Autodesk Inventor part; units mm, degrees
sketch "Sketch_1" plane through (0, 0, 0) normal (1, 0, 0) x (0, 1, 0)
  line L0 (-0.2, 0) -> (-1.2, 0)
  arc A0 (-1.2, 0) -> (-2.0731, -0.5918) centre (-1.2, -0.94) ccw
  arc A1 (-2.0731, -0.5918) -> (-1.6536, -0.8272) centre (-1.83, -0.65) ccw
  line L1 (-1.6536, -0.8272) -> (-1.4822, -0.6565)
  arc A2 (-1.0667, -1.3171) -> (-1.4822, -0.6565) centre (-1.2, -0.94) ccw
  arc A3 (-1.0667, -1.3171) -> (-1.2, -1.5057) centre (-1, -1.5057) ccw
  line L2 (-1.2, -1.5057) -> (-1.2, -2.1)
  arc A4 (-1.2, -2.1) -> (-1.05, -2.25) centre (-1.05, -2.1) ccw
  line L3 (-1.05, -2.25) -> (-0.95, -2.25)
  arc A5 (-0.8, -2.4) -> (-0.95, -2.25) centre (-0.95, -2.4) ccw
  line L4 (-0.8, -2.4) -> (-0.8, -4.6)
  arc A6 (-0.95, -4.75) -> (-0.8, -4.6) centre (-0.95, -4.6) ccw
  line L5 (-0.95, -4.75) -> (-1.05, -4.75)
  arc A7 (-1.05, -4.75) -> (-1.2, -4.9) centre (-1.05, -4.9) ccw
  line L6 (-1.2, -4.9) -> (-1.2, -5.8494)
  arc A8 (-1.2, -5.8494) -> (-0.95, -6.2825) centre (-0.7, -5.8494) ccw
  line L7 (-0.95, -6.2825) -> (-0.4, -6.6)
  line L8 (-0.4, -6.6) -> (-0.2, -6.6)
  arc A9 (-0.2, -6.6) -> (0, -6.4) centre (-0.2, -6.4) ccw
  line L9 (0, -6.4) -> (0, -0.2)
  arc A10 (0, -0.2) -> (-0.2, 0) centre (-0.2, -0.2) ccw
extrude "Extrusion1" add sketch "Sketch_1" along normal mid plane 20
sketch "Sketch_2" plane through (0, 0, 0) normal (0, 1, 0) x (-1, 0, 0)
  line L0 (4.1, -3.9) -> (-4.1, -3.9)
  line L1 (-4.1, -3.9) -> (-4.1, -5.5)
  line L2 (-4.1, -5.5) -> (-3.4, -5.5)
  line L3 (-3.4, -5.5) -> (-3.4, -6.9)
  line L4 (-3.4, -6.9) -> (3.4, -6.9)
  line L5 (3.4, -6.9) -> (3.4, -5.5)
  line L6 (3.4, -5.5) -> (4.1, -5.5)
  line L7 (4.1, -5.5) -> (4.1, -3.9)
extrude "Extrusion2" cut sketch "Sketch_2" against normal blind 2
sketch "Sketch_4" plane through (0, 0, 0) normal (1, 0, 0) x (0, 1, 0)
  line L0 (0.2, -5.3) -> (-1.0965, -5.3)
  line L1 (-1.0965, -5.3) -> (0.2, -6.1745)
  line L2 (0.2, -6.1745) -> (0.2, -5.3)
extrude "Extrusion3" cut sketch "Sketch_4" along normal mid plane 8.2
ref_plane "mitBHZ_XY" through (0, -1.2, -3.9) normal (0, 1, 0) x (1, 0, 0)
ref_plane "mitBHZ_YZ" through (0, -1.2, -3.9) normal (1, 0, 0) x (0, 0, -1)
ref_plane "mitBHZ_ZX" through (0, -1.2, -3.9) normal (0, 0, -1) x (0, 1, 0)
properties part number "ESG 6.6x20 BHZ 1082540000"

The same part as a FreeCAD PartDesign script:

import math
import FreeCAD as App
import Part
import Sketcher

V = App.Vector
Q = App.Units.Quantity


def add_polygon(sketch, points):
    """Adds a closed chain of lines whose ends are joined by coincident constraints."""
    first, n = sketch.GeometryCount, len(points)
    for a, b in zip(points, points[1:] + points[:1]):
        sketch.addGeometry(Part.LineSegment(App.Vector(*a, 0), App.Vector(*b, 0)), False)
    for i in range(n):
        sketch.addConstraint(Sketcher.Constraint("Coincident", first + i, 2, first + (i + 1) % n, 1))

doc = App.newDocument("Part")
body = doc.addObject("PartDesign::Body", "Body")

# Sketch on YZ plane
sketch1 = body.newObject("Sketcher::SketchObject", "Sketch")
sketch1.AttachmentSupport = (doc.getObject("YZ_Plane"), [""])
sketch1.MapMode = "FlatFace"
sketch1.addGeometry(Part.ArcOfCircle(Part.Circle(V(-0.2, -0.2, 0), V(0, 0, 1), 0.2), math.radians(0), math.radians(90)), False)
sketch1.addGeometry(Part.LineSegment(V(-0.2, 0, 0), V(-1.2, 0, 0)), False)
sketch1.addGeometry(Part.ArcOfCircle(Part.Circle(V(-1.2, -0.94, 0), V(0, 0, 1), 0.94), math.radians(90), math.radians(158)), False)
sketch1.addGeometry(Part.ArcOfCircle(Part.Circle(V(-1.83, -0.65, 0), V(0, 0, 1), 0.25), math.radians(167), math.radians(315)), False)
sketch1.addGeometry(Part.LineSegment(V(-1.65, -0.83, 0), V(-1.48, -0.66, 0)), False)
sketch1.addGeometry(Part.ArcOfCircle(Part.Circle(V(-1.2, -0.94, 0), V(0, 0, 1), 0.4), math.radians(-71), math.radians(135)), False)
sketch1.addGeometry(Part.ArcOfCircle(Part.Circle(V(-1, -1.51, 0), V(0, 0, 1), 0.2), math.radians(109), math.radians(180)), False)
sketch1.addGeometry(Part.LineSegment(V(-1.2, -1.51, 0), V(-1.2, -2.1, 0)), False)
sketch1.addGeometry(Part.ArcOfCircle(Part.Circle(V(-1.05, -2.1, 0), V(0, 0, 1), 0.15), math.radians(180), math.radians(270)), False)
sketch1.addGeometry(Part.LineSegment(V(-1.05, -2.25, 0), V(-0.95, -2.25, 0)), False)
sketch1.addGeometry(Part.ArcOfCircle(Part.Circle(V(-0.95, -2.4, 0), V(0, 0, 1), 0.15), math.radians(0), math.radians(90)), False)
sketch1.addGeometry(Part.LineSegment(V(-0.8, -2.4, 0), V(-0.8, -4.6, 0)), False)
sketch1.addGeometry(Part.ArcOfCircle(Part.Circle(V(-0.95, -4.6, 0), V(0, 0, 1), 0.15), math.radians(-90), math.radians(0)), False)
sketch1.addGeometry(Part.LineSegment(V(-0.95, -4.75, 0), V(-1.05, -4.75, 0)), False)
sketch1.addGeometry(Part.ArcOfCircle(Part.Circle(V(-1.05, -4.9, 0), V(0, 0, 1), 0.15), math.radians(90), math.radians(180)), False)
sketch1.addGeometry(Part.LineSegment(V(-1.2, -4.9, 0), V(-1.2, -5.85, 0)), False)
sketch1.addGeometry(Part.ArcOfCircle(Part.Circle(V(-0.7, -5.85, 0), V(0, 0, 1), 0.5), math.radians(180), math.radians(240)), False)
sketch1.addGeometry(Part.LineSegment(V(-0.95, -6.28, 0), V(-0.4, -6.6, 0)), False)
sketch1.addGeometry(Part.LineSegment(V(-0.4, -6.6, 0), V(-0.2, -6.6, 0)), False)
sketch1.addGeometry(Part.ArcOfCircle(Part.Circle(V(-0.2, -6.4, 0), V(0, 0, 1), 0.2), math.radians(-90), math.radians(0)), False)
sketch1.addGeometry(Part.LineSegment(V(0, -6.4, 0), V(0, -0.2, 0)), False)
sketch1.addConstraint(Sketcher.Constraint("Tangent", 0, 2, 1, 1))
sketch1.addConstraint(Sketcher.Constraint("Tangent", 1, 2, 2, 1))
sketch1.addConstraint(Sketcher.Constraint("Coincident", 2, 2, 3, 1))
sketch1.addConstraint(Sketcher.Constraint("Tangent", 3, 2, 4, 1))
sketch1.addConstraint(Sketcher.Constraint("Tangent", 4, 2, 5, 2))
sketch1.addConstraint(Sketcher.Constraint("Tangent", 5, 1, 6, 1))
sketch1.addConstraint(Sketcher.Constraint("Tangent", 6, 2, 7, 1))
sketch1.addConstraint(Sketcher.Constraint("Tangent", 7, 2, 8, 1))
sketch1.addConstraint(Sketcher.Constraint("Tangent", 8, 2, 9, 1))
sketch1.addConstraint(Sketcher.Constraint("Tangent", 9, 2, 10, 2))
sketch1.addConstraint(Sketcher.Constraint("Tangent", 10, 1, 11, 1))
sketch1.addConstraint(Sketcher.Constraint("Tangent", 11, 2, 12, 2))
sketch1.addConstraint(Sketcher.Constraint("Tangent", 12, 1, 13, 1))
sketch1.addConstraint(Sketcher.Constraint("Tangent", 13, 2, 14, 1))
sketch1.addConstraint(Sketcher.Constraint("Tangent", 14, 2, 15, 1))
sketch1.addConstraint(Sketcher.Constraint("Tangent", 15, 2, 16, 1))
sketch1.addConstraint(Sketcher.Constraint("Tangent", 16, 2, 17, 1))
sketch1.addConstraint(Sketcher.Constraint("Coincident", 17, 2, 18, 1))
sketch1.addConstraint(Sketcher.Constraint("Tangent", 18, 2, 19, 1))
sketch1.addConstraint(Sketcher.Constraint("Tangent", 19, 2, 20, 1))
sketch1.addConstraint(Sketcher.Constraint("Tangent", 20, 2, 0, 1))
sketch1.addConstraint(Sketcher.Constraint("Horizontal", 1))
sketch1.addConstraint(Sketcher.Constraint("Vertical", 7))
sketch1.addConstraint(Sketcher.Constraint("Horizontal", 9))
sketch1.addConstraint(Sketcher.Constraint("Vertical", 11))
sketch1.addConstraint(Sketcher.Constraint("Horizontal", 13))
sketch1.addConstraint(Sketcher.Constraint("Vertical", 15))
sketch1.addConstraint(Sketcher.Constraint("Horizontal", 18))
sketch1.addConstraint(Sketcher.Constraint("Vertical", 20))
sketch1.addConstraint(Sketcher.Constraint("Coincident", 5, 3, 2, 3))
sketch1.addConstraint(Sketcher.Constraint("Equal", 0, 6))
sketch1.addConstraint(Sketcher.Constraint("Equal", 8, 10))
sketch1.addConstraint(Sketcher.Constraint("Equal", 10, 12))
sketch1.addConstraint(Sketcher.Constraint("Equal", 12, 14))
sketch1.addConstraint(Sketcher.Constraint("Equal", 6, 19))
sketch1.addConstraint(Sketcher.Constraint("PointOnObject", 0, 2, -1))
sketch1.addConstraint(Sketcher.Constraint("PointOnObject", 19, 2, -2))
sketch1.addConstraint(Sketcher.Constraint("Vertical", 8, 3, 14, 3))
sketch1.addConstraint(Sketcher.Constraint("Vertical", 1, 2, 6, 2))
sketch1.addConstraint(Sketcher.Constraint("Vertical", 12, 1, 16, 2))
sketch1.addConstraint(Sketcher.Constraint("Radius", 0, Q("0.2 mm")))
sketch1.addConstraint(Sketcher.Constraint("Radius", 5, Q("0.4 mm")))
sketch1.addConstraint(Sketcher.Constraint("Radius", 16, Q("0.5 mm")))
sketch1.addConstraint(Sketcher.Constraint("DistanceX", 1, 2, 1, 1, Q("1 mm")))
sketch1.addConstraint(Sketcher.Constraint("Radius", 2, Q("0.94 mm")))
sketch1.addConstraint(Sketcher.Constraint("Radius", 3, Q("0.25 mm")))
sketch1.addConstraint(Sketcher.Constraint("Radius", 8, Q("0.15 mm")))
sketch1.addConstraint(Sketcher.Constraint("DistanceX", 9, 1, 9, 2, Q("0.1 mm")))
sketch1.addConstraint(Sketcher.Constraint("DistanceX", 18, 1, 18, 2, Q("0.2 mm")))
sketch1.addConstraint(Sketcher.Constraint("DistanceY", 11, 2, 11, 1, Q("2.2 mm")))
sketch1.addConstraint(Sketcher.Constraint("DistanceY", 20, 1, 20, 2, Q("6.2 mm")))
sketch1.addConstraint(Sketcher.Constraint("DistanceY", 19, 3, 10, 3, Q("4 mm")))
sketch1.addConstraint(Sketcher.Constraint("DistanceX", 3, 3, -1, 1, Q("1.83 mm")))
sketch1.addConstraint(Sketcher.Constraint("DistanceY", 3, 3, -1, 1, Q("0.65 mm")))
pad1 = body.newObject("PartDesign::Pad", "Pad")
pad1.Profile = sketch1
pad1.Length = 20
pad1.Midplane = True

# Sketch on XZ plane
sketch2 = body.newObject("Sketcher::SketchObject", "Sketch001")
sketch2.AttachmentSupport = (doc.getObject("XZ_Plane"), [""])
sketch2.MapMode = "FlatFace"
add_polygon(sketch2, [(-4.1, -5.5), (-4.1, -3.9), (4.1, -3.9), (4.1, -5.5), (3.4, -5.5), (3.4, -6.9), (-3.4, -6.9), (-3.4, -5.5)])  # lines 0-7
sketch2.addConstraint(Sketcher.Constraint("Vertical", 0))
sketch2.addConstraint(Sketcher.Constraint("Horizontal", 1))
sketch2.addConstraint(Sketcher.Constraint("Vertical", 2))
sketch2.addConstraint(Sketcher.Constraint("Horizontal", 3))
sketch2.addConstraint(Sketcher.Constraint("Vertical", 4))
sketch2.addConstraint(Sketcher.Constraint("Horizontal", 5))
sketch2.addConstraint(Sketcher.Constraint("Vertical", 6))
sketch2.addConstraint(Sketcher.Constraint("Horizontal", 7))
sketch2.addConstraint(Sketcher.Constraint("Symmetric", 3, 2, 6, 2, -2))
sketch2.addConstraint(Sketcher.Constraint("Equal", 3, 7))
sketch2.addConstraint(Sketcher.Constraint("DistanceX", 1, 1, 1, 2, Q("8.2 mm")))
sketch2.addConstraint(Sketcher.Constraint("DistanceX", 3, 2, 3, 1, Q("0.7 mm")))
sketch2.addConstraint(Sketcher.Constraint("DistanceY", 0, 1, 0, 2, Q("1.6 mm")))
sketch2.addConstraint(Sketcher.Constraint("DistanceY", 4, 2, 4, 1, Q("1.4 mm")))
sketch2.addConstraint(Sketcher.Constraint("DistanceY", 0, 2, -1, 1, Q("3.9 mm")))
pocket1 = body.newObject("PartDesign::Pocket", "Pocket")
pocket1.Profile = sketch2
pocket1.Length = 2
pocket1.Reversed = True

# Sketch on YZ plane
sketch3 = body.newObject("Sketcher::SketchObject", "Sketch002")
sketch3.AttachmentSupport = (doc.getObject("YZ_Plane"), [""])
sketch3.MapMode = "FlatFace"
add_polygon(sketch3, [(0.2, -6.2), (0.2, -5.3), (-1.1, -5.3)])  # lines 0-2
sketch3.addConstraint(Sketcher.Constraint("Vertical", 0))
sketch3.addConstraint(Sketcher.Constraint("Horizontal", 1))
sketch3.addConstraint(Sketcher.Constraint("Angle", 2, Q("-34 deg")))
sketch3.addConstraint(Sketcher.Constraint("DistanceX", -1, 1, 0, 2, Q("0.2 mm")))
sketch3.addConstraint(Sketcher.Constraint("DistanceY", 0, 2, -1, 1, Q("5.3 mm")))
sketch3.addConstraint(Sketcher.Constraint("DistanceX", 1, 2, 1, 1, Q("1.2965 mm")))
pocket2 = body.newObject("PartDesign::Pocket", "Pocket001")
pocket2.Profile = sketch3
pocket2.Length = 8.2
pocket2.Midplane = True

doc.recompute()
